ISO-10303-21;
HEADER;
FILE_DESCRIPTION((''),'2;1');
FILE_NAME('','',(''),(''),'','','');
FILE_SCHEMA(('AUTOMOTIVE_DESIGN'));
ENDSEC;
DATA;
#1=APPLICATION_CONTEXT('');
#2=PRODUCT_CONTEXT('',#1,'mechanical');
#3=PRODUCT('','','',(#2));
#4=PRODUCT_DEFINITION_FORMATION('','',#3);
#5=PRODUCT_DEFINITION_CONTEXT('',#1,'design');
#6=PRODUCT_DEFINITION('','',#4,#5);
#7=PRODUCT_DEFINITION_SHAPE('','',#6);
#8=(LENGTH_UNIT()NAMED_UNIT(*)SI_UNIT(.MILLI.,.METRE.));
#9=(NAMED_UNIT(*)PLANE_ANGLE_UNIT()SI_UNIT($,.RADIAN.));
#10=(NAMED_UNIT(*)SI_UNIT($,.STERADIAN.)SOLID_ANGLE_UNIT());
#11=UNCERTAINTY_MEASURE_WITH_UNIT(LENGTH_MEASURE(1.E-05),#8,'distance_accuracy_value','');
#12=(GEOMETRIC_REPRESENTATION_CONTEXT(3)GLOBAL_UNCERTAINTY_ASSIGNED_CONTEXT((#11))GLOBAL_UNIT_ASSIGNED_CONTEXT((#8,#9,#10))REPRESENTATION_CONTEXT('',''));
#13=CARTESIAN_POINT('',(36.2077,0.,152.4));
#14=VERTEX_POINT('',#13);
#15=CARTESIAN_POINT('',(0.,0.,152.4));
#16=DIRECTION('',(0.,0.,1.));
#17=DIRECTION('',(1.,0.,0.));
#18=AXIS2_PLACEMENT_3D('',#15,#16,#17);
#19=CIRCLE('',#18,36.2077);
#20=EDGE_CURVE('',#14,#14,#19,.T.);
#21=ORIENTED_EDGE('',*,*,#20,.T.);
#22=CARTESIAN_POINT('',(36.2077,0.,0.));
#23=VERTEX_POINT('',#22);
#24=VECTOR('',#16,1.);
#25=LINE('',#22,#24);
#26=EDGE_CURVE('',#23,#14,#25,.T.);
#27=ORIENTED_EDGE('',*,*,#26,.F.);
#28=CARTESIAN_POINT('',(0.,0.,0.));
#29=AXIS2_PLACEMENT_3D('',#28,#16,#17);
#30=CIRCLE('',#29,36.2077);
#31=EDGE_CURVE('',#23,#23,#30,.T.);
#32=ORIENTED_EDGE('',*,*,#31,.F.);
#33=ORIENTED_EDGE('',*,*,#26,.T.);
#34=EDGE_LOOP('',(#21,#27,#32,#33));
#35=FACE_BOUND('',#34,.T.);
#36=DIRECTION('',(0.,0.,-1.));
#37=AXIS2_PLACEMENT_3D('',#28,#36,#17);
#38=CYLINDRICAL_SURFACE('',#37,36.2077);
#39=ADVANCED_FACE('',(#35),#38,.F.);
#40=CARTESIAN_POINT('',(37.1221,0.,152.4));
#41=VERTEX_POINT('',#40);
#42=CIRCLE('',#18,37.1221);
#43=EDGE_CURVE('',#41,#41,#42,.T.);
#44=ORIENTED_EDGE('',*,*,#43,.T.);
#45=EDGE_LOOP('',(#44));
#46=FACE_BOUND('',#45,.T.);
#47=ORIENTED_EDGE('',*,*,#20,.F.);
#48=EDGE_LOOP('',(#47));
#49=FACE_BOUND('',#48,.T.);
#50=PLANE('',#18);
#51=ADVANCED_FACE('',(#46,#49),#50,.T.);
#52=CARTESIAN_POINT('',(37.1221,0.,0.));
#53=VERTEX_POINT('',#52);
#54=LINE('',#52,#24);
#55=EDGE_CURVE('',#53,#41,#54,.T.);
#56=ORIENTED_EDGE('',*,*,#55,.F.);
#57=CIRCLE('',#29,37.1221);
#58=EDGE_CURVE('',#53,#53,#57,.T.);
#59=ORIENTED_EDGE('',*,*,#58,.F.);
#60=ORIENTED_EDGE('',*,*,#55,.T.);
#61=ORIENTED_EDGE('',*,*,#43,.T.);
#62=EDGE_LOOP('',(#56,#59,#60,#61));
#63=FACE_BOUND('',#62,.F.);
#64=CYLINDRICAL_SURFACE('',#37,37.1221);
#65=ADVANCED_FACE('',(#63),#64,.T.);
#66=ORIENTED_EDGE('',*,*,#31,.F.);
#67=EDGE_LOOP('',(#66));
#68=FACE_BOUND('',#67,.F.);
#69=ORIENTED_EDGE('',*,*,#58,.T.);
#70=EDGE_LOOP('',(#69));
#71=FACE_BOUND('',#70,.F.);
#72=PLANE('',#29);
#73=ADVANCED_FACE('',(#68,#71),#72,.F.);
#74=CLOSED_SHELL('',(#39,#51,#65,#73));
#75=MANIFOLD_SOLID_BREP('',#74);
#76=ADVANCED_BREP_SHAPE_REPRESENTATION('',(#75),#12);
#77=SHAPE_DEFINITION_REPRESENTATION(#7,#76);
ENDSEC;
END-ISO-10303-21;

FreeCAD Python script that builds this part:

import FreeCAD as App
import Part
import Sketcher
from FreeCAD import Vector
Q = App.Units.Quantity

doc = App.newDocument("Part")
body = doc.addObject("PartDesign::Body", "Body")

# Sketch on XY plane
sketch1 = body.newObject("Sketcher::SketchObject", "Sketch")
sketch1.AttachmentSupport = (doc.getObject("XY_Plane"), [""])
sketch1.MapMode = "FlatFace"
sketch1.addGeometry(Part.Circle(Vector(0, 0, 0), Vector(0, 0, 1), 37), False)
sketch1.addGeometry(Part.Circle(Vector(0, 0, 0), Vector(0, 0, 1), 36), False)
sketch1.addConstraint(Sketcher.Constraint("Coincident", 0, 3, -1, 1))
sketch1.addConstraint(Sketcher.Constraint("Coincident", 1, 3, -1, 1))
sketch1.addConstraint(Sketcher.Constraint("Diameter", 0, Q("2.923 in")))
sketch1.addConstraint(Sketcher.Constraint("Diameter", 1, Q("2.851 in")))
pad1 = body.newObject("PartDesign::Pad", "Pad")
pad1.Profile = sketch1
pad1.Length = Q("6 in")

doc.recompute()
